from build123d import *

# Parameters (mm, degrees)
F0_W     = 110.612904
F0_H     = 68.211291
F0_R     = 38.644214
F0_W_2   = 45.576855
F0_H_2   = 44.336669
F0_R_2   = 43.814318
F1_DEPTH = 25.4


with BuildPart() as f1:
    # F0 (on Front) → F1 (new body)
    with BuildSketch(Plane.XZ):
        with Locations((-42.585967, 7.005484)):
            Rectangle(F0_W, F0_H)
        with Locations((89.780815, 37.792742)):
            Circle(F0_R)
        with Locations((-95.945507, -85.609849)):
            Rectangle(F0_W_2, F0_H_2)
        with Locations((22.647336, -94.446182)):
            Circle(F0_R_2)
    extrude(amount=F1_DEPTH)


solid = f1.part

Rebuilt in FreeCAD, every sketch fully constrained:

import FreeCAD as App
import Part
import Sketcher
from FreeCAD import Vector
Q = App.Units.Quantity


def add_polygon(sketch, points):
    """Adds a closed chain of lines whose ends are joined by coincident constraints."""
    first, n = sketch.GeometryCount, len(points)
    for a, b in zip(points, points[1:] + points[:1]):
        sketch.addGeometry(Part.LineSegment(App.Vector(*a, 0), App.Vector(*b, 0)), False)
    for i in range(n):
        sketch.addConstraint(Sketcher.Constraint("Coincident", first + i, 2, first + (i + 1) % n, 1))

doc = App.newDocument("Part")
body = doc.addObject("PartDesign::Body", "Body")
body.AllowCompound = True

# Sketch on XZ plane
sketch1 = body.newObject("Sketcher::SketchObject", "Sketch")
sketch1.AttachmentSupport = (doc.getObject("XZ_Plane"), [""])
sketch1.MapMode = "FlatFace"
add_polygon(sketch1, [(-98, 41), (-98, -27), (13, -27), (13, 41)])  # lines 0-3
sketch1.addGeometry(Part.Circle(Vector(90, 38, 0), Vector(0, 0, 1), 39), False)  # 4
add_polygon(sketch1, [(-119, -63), (-119, -108), (-73, -108), (-73, -63)])  # lines 5-8
sketch1.addGeometry(Part.Circle(Vector(23, -94, 0), Vector(0, 0, 1), 44), False)  # 9
sketch1.addConstraint([
    Sketcher.Constraint("Vertical", 0),
    Sketcher.Constraint("Horizontal", 1),
    Sketcher.Constraint("Vertical", 2),
    Sketcher.Constraint("Horizontal", 3),
    Sketcher.Constraint("Vertical", 5),
    Sketcher.Constraint("Horizontal", 6),
    Sketcher.Constraint("Vertical", 7),
    Sketcher.Constraint("Horizontal", 8),
    Sketcher.Constraint("Diameter", 4, 77.288428),
    Sketcher.Constraint("Diameter", 9, 87.628636),
    Sketcher.Constraint("DistanceX", 6, 2, -1, 1, Q("2.8802 in")),
    Sketcher.Constraint("DistanceY", 5, 2, 0, 2, Q("3.1763001 in")),
    Sketcher.Constraint("DistanceY", 0, 2, 0, 1, 68.211291),
    Sketcher.Constraint("DistanceY", 5, 2, 5, 1, 44.336669),
    Sketcher.Constraint("DistanceY", 5, 2, 9, 3, 13.332002),
    Sketcher.Constraint("DistanceX", 1, 1, 1, 2, 110.612904),
    Sketcher.Constraint("DistanceX", 6, 1, 6, 2, 45.576855),
    Sketcher.Constraint("DistanceY", -1, 1, 4, 3, 37.792742),
    Sketcher.Constraint("DistanceY", 9, 3, -1, 1, 94.446182),
    Sketcher.Constraint("DistanceX", 0, 2, -1, 1, 97.892419),
    Sketcher.Constraint("DistanceX", 9, 3, 4, 3, 67.133479),
    Sketcher.Constraint("DistanceX", 1, 2, 9, 3, 9.926851),
])
pad1 = body.newObject("PartDesign::Pad", "Pad")
pad1.Profile = sketch1
pad1.Length = Q("1 in")

doc.recompute()
